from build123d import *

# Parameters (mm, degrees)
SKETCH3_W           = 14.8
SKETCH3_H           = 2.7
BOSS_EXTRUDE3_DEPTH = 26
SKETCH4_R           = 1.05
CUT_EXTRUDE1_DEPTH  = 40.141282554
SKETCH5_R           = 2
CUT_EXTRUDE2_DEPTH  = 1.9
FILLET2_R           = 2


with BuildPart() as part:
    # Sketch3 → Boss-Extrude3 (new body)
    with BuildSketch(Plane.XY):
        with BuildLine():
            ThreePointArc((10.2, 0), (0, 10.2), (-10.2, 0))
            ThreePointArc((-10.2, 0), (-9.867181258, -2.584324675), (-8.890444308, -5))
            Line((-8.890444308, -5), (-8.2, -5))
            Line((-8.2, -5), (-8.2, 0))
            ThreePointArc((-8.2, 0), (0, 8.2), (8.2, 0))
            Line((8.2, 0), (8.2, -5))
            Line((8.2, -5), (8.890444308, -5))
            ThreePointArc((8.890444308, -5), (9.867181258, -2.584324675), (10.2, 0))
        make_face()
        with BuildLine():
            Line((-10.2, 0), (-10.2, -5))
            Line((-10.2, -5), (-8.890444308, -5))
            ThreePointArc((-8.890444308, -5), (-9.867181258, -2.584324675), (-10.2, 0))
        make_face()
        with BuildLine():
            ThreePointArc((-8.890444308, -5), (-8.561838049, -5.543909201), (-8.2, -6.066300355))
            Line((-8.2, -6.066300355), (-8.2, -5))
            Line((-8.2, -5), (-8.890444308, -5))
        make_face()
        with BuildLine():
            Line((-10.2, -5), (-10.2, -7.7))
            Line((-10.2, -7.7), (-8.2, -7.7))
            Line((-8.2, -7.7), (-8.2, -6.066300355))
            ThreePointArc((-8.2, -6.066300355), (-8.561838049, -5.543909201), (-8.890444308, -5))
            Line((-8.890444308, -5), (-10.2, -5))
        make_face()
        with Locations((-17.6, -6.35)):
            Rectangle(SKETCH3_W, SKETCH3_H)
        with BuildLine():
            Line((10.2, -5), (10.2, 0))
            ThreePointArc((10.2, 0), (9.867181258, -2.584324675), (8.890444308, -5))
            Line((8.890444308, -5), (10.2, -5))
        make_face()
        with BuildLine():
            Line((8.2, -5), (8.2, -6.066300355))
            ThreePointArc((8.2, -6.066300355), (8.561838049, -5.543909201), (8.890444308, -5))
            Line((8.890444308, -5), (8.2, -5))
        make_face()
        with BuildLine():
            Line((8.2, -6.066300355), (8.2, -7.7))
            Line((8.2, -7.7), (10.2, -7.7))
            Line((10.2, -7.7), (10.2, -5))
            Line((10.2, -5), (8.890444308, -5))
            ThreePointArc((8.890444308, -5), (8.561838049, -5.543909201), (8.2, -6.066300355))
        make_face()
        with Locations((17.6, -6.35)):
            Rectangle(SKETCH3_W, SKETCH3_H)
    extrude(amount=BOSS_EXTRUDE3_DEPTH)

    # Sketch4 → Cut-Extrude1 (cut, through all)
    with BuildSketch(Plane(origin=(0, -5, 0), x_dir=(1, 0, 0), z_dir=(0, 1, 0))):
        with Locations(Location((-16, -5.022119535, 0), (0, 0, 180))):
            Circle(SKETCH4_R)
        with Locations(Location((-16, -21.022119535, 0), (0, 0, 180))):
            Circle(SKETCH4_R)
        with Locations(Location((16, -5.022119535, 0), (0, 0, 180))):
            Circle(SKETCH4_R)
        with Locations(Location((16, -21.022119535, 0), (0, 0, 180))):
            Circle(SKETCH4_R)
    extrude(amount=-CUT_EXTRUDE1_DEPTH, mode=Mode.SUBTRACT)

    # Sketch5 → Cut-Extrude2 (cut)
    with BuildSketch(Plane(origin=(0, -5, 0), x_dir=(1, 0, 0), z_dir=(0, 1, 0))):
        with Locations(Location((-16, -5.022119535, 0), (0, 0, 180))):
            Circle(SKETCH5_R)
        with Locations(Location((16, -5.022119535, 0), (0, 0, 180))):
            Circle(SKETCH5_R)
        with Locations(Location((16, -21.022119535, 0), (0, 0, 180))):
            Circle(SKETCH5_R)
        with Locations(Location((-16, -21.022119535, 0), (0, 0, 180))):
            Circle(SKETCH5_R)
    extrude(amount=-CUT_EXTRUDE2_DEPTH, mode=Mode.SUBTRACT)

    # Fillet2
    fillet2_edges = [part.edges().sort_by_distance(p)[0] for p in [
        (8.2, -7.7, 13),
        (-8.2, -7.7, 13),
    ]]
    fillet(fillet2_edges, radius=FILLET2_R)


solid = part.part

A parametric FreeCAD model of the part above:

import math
import FreeCAD as App
import Part
import Sketcher
from FreeCAD import Vector


def edges_at(feature, points):
    """Names of the edges that pass closest to the given points."""
    edges = feature.Shape.Edges
    near = lambda p: min(range(len(edges)), key=lambda i: edges[i].distToShape(Part.Vertex(*p))[0])
    return sorted({f"Edge{near(p) + 1}" for p in points})

doc = App.newDocument("Part")
body = doc.addObject("PartDesign::Body", "Body")

sketch1 = body.newObject("Sketcher::SketchObject", "Sketch")
sketch1.AttachmentSupport = (doc.getObject("XY_Plane"), [""])
sketch1.MapMode = "FlatFace"
sketch1.addGeometry([
    Part.ArcOfCircle(Part.Circle(Vector(0, 0, 0), Vector(0, 0, 1), 10.2), math.radians(0), math.radians(180)),
    Part.LineSegment(Vector(-10.2, 0, 0), Vector(-10.2, -5, 0)),
    Part.LineSegment(Vector(-10.2, -5, 0), Vector(-25, -5, 0)),
    Part.LineSegment(Vector(-25, -5, 0), Vector(-25, -7.7, 0)),
    Part.LineSegment(Vector(-25, -7.7, 0), Vector(-8.2, -7.7, 0)),
    Part.LineSegment(Vector(-8.2, -7.7, 0), Vector(-8.2, 0, 0)),
    Part.ArcOfCircle(Part.Circle(Vector(0, 0, 0), Vector(0, 0, 1), 8.2), math.radians(0), math.radians(180)),
    Part.LineSegment(Vector(8.2, 0, 0), Vector(8.2, -7.7, 0)),
    Part.LineSegment(Vector(8.2, -7.7, 0), Vector(25, -7.7, 0)),
    Part.LineSegment(Vector(25, -7.7, 0), Vector(25, -5, 0)),
    Part.LineSegment(Vector(25, -5, 0), Vector(10.2, -5, 0)),
    Part.LineSegment(Vector(10.2, -5, 0), Vector(10.2, 0, 0)),
], False)
sketch1.addConstraint([
    Sketcher.Constraint("Tangent", 0, 2, 1, 1),
    Sketcher.Constraint("Coincident", 1, 2, 2, 1),
    Sketcher.Constraint("Coincident", 2, 2, 3, 1),
    Sketcher.Constraint("Coincident", 3, 2, 4, 1),
    Sketcher.Constraint("Coincident", 4, 2, 5, 1),
    Sketcher.Constraint("Tangent", 5, 2, 6, 2),
    Sketcher.Constraint("Tangent", 6, 1, 7, 1),
    Sketcher.Constraint("Coincident", 7, 2, 8, 1),
    Sketcher.Constraint("Coincident", 8, 2, 9, 1),
    Sketcher.Constraint("Coincident", 9, 2, 10, 1),
    Sketcher.Constraint("Coincident", 10, 2, 11, 1),
    Sketcher.Constraint("Tangent", 11, 2, 0, 1),
    Sketcher.Constraint("Vertical", 1),
    Sketcher.Constraint("Horizontal", 2),
    Sketcher.Constraint("Vertical", 3),
    Sketcher.Constraint("Horizontal", 4),
    Sketcher.Constraint("Vertical", 5),
    Sketcher.Constraint("Vertical", 7),
    Sketcher.Constraint("Horizontal", 8),
    Sketcher.Constraint("Vertical", 9),
    Sketcher.Constraint("Horizontal", 10),
    Sketcher.Constraint("Vertical", 11),
    Sketcher.Constraint("Coincident", 0, 3, -1, 1),
    Sketcher.Constraint("Coincident", 6, 3, -1, 1),
    Sketcher.Constraint("Symmetric", 3, 2, 8, 2, -2),
    Sketcher.Constraint("Horizontal", 2, 2, 9, 2),
    Sketcher.Constraint("Radius", 0, 10.2),
    Sketcher.Constraint("Radius", 6, 8.2),
    Sketcher.Constraint("DistanceY", 1, 2, 1, 1, 5.0),
    Sketcher.Constraint("DistanceX", 2, 2, 2, 1, 14.8),
    Sketcher.Constraint("DistanceY", 3, 2, 3, 1, 2.7),
])
pad1 = body.newObject("PartDesign::Pad", "Pad")
pad1.Profile = sketch1
pad1.Length = 26

sketch2 = body.newObject("Sketcher::SketchObject", "Sketch001")
sketch2.AttachmentSupport = (doc.getObject("XZ_Plane"), [""])
sketch2.MapMode = "FlatFace"
sketch2.AttachmentOffset = App.Placement(Vector(0, 0, 5), App.Rotation())
sketch2.addGeometry([
    Part.Circle(Vector(-16, 5, 0), Vector(0, 0, 1), 1.1),
    Part.Circle(Vector(-16, 21, 0), Vector(0, 0, 1), 1.1),
    Part.Circle(Vector(16, 5, 0), Vector(0, 0, 1), 1.1),
    Part.Circle(Vector(16, 21, 0), Vector(0, 0, 1), 1.1),
], False)
sketch2.addConstraint([
    Sketcher.Constraint("Equal", 0, 1),
    Sketcher.Constraint("Equal", 1, 2),
    Sketcher.Constraint("Equal", 2, 3),
    Sketcher.Constraint("Symmetric", 0, 3, 2, 3, -2),
    Sketcher.Constraint("Symmetric", 1, 3, 3, 3, -2),
    Sketcher.Constraint("Vertical", 0, 3, 1, 3),
    Sketcher.Constraint("Diameter", 0, 2.1),
    Sketcher.Constraint("DistanceX", 0, 3, -1, 1, 16.0),
    Sketcher.Constraint("DistanceY", 0, 3, 1, 3, 16.0),
    Sketcher.Constraint("DistanceY", -1, 1, 0, 3, 5.02212),
])
pocket1 = body.newObject("PartDesign::Pocket", "Pocket")
pocket1.Profile = sketch2
pocket1.Type = "ThroughAll"
pocket1.Reversed = True

sketch3 = body.newObject("Sketcher::SketchObject", "Sketch002")
sketch3.AttachmentSupport = (doc.getObject("XZ_Plane"), [""])
sketch3.MapMode = "FlatFace"
sketch3.AttachmentOffset = App.Placement(Vector(0, 0, 5), App.Rotation())
sketch3.addGeometry([
    Part.Circle(Vector(-16, 5, 0), Vector(0, 0, 1), 2),
    Part.Circle(Vector(16, 5, 0), Vector(0, 0, 1), 2),
    Part.Circle(Vector(16, 21, 0), Vector(0, 0, 1), 2),
    Part.Circle(Vector(-16, 21, 0), Vector(0, 0, 1), 2),
], False)
sketch3.addConstraint([
    Sketcher.Constraint("Equal", 0, 1),
    Sketcher.Constraint("Equal", 1, 2),
    Sketcher.Constraint("Equal", 2, 3),
    Sketcher.Constraint("Symmetric", 0, 3, 1, 3, -2),
    Sketcher.Constraint("Symmetric", 2, 3, 3, 3, -2),
    Sketcher.Constraint("Vertical", 1, 3, 2, 3),
    Sketcher.Constraint("Diameter", 0, 4.0),
    Sketcher.Constraint("DistanceX", 0, 3, -1, 1, 16.0),
    Sketcher.Constraint("DistanceY", 1, 3, 2, 3, 16.0),
    Sketcher.Constraint("DistanceY", -1, 1, 0, 3, 5.02212),
])
pocket2 = body.newObject("PartDesign::Pocket", "Pocket001")
pocket2.Profile = sketch3
pocket2.Length = 1.9
pocket2.Reversed = True
doc.recompute()

fillet = body.newObject("PartDesign::Fillet", "Fillet")
fillet.Base = (pocket2, edges_at(pocket2, [(8.2, -7.7, 13), (-8.2, -7.7, 13)]))
fillet.Radius = 2

doc.recompute()
